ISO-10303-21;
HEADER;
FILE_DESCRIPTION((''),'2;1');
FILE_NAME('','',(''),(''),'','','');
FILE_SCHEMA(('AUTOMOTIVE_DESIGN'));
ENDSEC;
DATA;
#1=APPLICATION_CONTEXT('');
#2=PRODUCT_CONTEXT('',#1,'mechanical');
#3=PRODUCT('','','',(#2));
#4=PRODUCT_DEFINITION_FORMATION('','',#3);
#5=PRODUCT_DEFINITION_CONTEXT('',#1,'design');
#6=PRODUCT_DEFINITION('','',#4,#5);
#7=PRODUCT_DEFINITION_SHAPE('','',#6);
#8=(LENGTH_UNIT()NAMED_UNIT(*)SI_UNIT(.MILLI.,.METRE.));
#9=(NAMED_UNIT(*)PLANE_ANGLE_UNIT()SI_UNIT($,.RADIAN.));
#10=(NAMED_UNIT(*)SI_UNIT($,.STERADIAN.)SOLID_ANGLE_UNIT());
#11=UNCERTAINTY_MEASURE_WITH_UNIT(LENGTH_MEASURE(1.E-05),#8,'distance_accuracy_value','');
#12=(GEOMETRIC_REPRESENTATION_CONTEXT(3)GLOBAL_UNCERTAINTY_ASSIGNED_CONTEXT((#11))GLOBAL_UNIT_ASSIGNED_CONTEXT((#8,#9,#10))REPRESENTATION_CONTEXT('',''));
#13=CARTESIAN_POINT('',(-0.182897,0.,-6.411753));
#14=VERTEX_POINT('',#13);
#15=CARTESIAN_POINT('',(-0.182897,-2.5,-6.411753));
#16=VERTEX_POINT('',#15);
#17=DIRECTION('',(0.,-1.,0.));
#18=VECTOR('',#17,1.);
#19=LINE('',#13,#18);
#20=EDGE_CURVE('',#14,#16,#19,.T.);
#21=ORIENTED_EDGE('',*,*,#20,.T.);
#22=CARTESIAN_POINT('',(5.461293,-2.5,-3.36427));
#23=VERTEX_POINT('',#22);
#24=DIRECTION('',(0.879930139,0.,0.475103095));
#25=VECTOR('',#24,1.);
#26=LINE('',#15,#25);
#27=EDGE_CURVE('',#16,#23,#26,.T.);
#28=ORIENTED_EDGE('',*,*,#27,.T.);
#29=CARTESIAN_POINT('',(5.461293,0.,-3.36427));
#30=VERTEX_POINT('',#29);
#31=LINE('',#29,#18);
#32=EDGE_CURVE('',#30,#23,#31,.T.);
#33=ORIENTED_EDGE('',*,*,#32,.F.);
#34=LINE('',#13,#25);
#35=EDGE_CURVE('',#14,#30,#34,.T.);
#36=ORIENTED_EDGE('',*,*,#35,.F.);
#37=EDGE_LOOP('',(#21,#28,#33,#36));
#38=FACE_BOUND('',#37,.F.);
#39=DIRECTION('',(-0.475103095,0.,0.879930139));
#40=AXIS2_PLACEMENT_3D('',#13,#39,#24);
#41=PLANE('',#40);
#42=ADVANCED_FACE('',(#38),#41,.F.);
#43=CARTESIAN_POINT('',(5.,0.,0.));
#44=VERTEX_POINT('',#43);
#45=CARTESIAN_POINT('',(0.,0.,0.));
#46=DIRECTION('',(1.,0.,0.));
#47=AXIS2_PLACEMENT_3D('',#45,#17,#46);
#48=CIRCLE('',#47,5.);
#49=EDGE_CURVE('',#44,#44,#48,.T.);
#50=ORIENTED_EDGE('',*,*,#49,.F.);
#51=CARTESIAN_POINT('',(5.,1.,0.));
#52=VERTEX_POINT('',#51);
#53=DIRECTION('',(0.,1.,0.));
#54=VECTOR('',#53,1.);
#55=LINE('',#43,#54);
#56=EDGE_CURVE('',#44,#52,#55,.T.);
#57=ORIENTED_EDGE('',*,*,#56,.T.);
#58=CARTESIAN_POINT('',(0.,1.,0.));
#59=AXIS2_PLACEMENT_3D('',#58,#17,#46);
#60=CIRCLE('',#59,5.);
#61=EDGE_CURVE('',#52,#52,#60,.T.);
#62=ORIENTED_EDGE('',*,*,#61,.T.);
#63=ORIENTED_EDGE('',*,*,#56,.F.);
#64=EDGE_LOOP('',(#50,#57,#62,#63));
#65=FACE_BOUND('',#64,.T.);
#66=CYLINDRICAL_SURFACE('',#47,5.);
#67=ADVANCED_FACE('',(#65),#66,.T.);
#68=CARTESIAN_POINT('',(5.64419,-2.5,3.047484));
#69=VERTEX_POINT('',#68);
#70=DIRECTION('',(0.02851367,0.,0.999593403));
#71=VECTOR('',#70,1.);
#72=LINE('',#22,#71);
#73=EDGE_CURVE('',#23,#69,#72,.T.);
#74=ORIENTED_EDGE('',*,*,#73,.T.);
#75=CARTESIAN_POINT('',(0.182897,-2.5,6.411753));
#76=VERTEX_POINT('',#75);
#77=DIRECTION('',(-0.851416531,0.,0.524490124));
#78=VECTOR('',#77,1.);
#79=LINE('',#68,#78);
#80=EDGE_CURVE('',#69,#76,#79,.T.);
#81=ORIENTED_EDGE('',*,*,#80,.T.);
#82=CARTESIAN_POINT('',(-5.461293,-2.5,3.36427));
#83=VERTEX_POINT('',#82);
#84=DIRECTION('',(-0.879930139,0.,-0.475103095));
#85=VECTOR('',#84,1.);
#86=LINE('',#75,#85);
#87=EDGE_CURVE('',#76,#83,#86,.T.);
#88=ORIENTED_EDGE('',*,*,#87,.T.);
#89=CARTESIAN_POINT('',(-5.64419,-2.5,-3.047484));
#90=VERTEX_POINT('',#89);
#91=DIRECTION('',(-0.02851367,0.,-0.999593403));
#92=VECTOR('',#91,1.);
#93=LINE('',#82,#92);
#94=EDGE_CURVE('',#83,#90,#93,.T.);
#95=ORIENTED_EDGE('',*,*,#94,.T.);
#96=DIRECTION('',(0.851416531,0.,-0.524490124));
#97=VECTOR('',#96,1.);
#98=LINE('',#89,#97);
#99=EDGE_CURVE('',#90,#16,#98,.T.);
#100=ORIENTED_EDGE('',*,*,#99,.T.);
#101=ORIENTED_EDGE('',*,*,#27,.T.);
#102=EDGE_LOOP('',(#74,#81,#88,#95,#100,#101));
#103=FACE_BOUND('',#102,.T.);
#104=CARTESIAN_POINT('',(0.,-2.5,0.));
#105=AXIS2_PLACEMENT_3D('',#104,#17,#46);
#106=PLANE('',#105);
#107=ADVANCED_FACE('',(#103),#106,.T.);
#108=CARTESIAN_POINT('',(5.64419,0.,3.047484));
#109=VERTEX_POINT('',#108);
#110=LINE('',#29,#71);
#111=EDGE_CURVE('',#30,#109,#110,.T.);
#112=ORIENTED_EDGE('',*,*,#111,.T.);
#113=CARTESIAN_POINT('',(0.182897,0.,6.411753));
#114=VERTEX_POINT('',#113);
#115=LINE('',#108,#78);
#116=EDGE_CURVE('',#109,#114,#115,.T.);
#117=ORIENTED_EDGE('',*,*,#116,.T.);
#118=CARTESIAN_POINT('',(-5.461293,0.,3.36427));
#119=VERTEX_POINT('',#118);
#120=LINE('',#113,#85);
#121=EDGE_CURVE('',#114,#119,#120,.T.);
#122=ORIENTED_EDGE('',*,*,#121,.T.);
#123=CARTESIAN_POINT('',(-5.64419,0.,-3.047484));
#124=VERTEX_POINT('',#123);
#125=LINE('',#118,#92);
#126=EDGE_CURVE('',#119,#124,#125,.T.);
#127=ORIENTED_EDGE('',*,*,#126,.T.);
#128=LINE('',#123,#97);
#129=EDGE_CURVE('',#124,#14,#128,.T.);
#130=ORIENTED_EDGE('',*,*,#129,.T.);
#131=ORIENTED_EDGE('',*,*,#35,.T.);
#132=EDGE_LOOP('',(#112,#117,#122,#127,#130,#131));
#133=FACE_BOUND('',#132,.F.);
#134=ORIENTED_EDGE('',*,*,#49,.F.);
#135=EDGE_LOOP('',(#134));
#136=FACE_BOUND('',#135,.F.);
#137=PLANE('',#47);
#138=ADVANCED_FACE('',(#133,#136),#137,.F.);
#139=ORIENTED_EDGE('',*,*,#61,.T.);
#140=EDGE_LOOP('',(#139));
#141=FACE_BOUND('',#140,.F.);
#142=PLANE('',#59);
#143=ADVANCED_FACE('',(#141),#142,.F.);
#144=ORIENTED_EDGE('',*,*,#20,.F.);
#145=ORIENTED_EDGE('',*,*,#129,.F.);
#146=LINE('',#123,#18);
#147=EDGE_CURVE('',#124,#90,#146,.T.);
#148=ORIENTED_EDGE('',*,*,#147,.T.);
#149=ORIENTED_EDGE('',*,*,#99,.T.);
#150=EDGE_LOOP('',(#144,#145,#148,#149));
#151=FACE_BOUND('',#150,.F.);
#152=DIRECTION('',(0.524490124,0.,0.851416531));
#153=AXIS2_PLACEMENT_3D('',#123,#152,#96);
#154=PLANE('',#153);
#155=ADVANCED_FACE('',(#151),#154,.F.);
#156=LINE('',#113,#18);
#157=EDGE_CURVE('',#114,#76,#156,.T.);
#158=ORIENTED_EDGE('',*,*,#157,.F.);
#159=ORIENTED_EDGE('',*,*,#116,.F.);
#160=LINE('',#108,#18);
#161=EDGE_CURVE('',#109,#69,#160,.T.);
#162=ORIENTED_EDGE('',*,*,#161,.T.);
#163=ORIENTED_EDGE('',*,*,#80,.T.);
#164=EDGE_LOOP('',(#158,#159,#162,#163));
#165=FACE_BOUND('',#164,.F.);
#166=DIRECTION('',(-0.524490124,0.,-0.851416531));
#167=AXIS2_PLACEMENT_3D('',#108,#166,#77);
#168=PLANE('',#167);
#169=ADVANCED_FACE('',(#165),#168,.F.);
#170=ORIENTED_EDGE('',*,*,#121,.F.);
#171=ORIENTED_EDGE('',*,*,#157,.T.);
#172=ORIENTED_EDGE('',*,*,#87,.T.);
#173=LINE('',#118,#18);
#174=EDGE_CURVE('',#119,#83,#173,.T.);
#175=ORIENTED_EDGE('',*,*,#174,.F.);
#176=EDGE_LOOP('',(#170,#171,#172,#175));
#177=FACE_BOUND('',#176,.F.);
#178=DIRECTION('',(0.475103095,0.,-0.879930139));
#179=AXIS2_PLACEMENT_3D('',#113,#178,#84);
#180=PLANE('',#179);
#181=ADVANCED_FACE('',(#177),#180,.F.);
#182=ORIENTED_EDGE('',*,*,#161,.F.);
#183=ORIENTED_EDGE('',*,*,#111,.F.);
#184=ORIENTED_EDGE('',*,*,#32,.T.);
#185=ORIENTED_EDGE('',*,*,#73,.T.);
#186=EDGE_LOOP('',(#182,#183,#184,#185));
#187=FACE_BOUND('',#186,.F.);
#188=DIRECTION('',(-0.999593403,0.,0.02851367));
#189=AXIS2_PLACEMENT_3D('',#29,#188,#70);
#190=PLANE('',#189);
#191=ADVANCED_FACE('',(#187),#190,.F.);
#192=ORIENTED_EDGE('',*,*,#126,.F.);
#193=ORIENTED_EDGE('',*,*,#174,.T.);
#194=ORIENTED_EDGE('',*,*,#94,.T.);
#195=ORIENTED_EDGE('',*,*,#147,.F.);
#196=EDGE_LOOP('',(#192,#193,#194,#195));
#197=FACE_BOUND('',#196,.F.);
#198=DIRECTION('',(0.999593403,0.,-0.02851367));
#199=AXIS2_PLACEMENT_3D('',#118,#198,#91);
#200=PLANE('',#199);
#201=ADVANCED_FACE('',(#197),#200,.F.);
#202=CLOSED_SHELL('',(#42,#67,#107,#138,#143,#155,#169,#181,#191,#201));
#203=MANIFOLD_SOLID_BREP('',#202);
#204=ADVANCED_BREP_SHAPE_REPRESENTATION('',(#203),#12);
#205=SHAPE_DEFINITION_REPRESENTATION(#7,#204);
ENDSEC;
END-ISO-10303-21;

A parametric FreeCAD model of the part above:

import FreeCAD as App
import Part
import Sketcher
from FreeCAD import Vector

doc = App.newDocument("Part")
body = doc.addObject("PartDesign::Body", "Body")

# Sketch on XZ plane
sketch1 = body.newObject("Sketcher::SketchObject", "Sketch")
sketch1.AttachmentSupport = (doc.getObject("XZ_Plane"), [""])
sketch1.MapMode = "FlatFace"
sketch1.addGeometry([
    Part.LineSegment(Vector(6, 3, 0), Vector(0, 6, 0)),  # 0
    Part.LineSegment(Vector(0, 6, 0), Vector(-5, 3, 0)),  # 1
    Part.LineSegment(Vector(-5, 3, 0), Vector(-6, -3, 0)),  # 2
    Part.LineSegment(Vector(-6, -3, 0), Vector(0, -6, 0)),  # 3
    Part.LineSegment(Vector(0, -6, 0), Vector(5, -3, 0)),  # 4
    Part.LineSegment(Vector(5, -3, 0), Vector(6, 3, 0)),  # 5
], False)
sketch1.addConstraint([
    Sketcher.Constraint("Coincident", 0, 2, 1, 1),
    Sketcher.Constraint("Coincident", 1, 2, 2, 1),
    Sketcher.Constraint("Coincident", 2, 2, 3, 1),
    Sketcher.Constraint("Coincident", 3, 2, 4, 1),
    Sketcher.Constraint("Coincident", 4, 2, 5, 1),
    Sketcher.Constraint("Coincident", 5, 2, 0, 1),
    Sketcher.Constraint("Symmetric", 0, 2, 3, 2, -1, 1),
    Sketcher.Constraint("Symmetric", 1, 2, 4, 2, -1, 1),
    Sketcher.Constraint("Symmetric", 2, 2, 5, 2, -1, 1),
    Sketcher.Constraint("Equal", 0, 1),
    Sketcher.Constraint("Equal", 1, 2),
    Sketcher.Constraint("Distance", 0, 6.414361),
    Sketcher.Constraint("DistanceY", -1, 1, 1, 2, 3.36427),
    Sketcher.Constraint("DistanceX", 2, 2, -1, 1, 5.64419),
    Sketcher.Constraint("DistanceX", 1, 2, 0, 2, 5.64419),
])
pad1 = body.newObject("PartDesign::Pad", "Pad")
pad1.Profile = sketch1
pad1.Length = 2.5

# Sketch on XZ plane
sketch2 = body.newObject("Sketcher::SketchObject", "Sketch001")
sketch2.AttachmentSupport = (doc.getObject("XZ_Plane"), [""])
sketch2.MapMode = "FlatFace"
sketch2.addGeometry(Part.Circle(Vector(0, 0, 0), Vector(0, 0, 1), 5), False)
sketch2.addConstraint([
    Sketcher.Constraint("Coincident", 0, 3, -1, 1),
    Sketcher.Constraint("Diameter", 0, 10.0),
])
pad2 = body.newObject("PartDesign::Pad", "Pad001")
pad2.Profile = sketch2
pad2.Length = 1
pad2.Reversed = True

doc.recompute()
